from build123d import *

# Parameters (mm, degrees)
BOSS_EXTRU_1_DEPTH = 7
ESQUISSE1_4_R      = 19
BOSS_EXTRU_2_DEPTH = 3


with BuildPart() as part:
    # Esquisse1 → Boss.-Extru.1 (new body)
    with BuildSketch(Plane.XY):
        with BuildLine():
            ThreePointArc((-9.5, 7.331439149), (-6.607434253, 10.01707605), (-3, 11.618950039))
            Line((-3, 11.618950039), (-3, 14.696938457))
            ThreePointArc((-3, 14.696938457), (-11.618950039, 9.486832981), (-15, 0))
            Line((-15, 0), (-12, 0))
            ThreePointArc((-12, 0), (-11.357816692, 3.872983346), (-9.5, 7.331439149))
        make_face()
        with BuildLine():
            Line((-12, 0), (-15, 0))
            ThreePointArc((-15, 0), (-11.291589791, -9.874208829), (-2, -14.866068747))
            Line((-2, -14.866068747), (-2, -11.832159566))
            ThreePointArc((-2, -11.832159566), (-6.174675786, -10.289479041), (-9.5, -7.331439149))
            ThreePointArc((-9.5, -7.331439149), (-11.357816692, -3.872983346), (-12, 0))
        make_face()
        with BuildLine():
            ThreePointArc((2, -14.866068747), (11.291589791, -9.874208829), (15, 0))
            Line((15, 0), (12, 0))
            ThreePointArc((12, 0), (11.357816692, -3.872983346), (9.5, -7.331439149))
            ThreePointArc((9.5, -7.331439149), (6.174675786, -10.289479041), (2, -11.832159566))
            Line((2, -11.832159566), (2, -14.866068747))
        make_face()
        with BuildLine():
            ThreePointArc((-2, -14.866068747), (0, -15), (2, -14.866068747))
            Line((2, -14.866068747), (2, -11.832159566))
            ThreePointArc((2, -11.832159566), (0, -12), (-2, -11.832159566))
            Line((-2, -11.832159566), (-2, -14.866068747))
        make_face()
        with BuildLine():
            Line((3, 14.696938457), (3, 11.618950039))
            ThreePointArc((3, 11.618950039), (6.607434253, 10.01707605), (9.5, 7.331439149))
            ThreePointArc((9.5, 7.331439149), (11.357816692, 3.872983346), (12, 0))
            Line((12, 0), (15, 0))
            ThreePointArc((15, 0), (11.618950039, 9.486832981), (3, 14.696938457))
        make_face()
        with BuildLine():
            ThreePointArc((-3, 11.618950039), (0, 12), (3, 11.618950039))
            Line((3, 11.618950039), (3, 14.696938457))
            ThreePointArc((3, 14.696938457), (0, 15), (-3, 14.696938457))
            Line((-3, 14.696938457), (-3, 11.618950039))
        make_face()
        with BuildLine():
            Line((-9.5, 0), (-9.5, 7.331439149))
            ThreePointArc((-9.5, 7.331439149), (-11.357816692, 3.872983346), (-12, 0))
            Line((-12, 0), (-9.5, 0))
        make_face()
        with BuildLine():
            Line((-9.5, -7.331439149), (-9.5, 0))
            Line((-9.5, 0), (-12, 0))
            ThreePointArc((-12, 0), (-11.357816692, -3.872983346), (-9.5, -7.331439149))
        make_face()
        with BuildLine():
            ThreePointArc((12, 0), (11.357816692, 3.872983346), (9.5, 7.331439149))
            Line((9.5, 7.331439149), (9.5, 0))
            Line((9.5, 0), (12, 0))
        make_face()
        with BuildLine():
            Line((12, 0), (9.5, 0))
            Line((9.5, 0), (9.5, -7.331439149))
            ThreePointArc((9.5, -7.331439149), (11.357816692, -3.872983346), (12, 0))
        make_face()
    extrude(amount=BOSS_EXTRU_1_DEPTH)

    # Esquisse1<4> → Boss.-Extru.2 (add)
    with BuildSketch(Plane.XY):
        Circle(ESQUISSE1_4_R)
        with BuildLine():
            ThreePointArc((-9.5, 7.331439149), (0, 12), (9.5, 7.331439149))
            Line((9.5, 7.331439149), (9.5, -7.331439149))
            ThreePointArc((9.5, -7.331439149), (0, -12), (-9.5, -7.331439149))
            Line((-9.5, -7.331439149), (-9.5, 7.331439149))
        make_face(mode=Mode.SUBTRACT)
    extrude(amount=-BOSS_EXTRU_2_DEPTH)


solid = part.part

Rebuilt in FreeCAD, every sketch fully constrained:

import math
import FreeCAD as App
import Part
import Sketcher
Q = App.Units.Quantity

doc = App.newDocument("Part")
params = doc.addObject("Spreadsheet::Sheet", "Params")
for row, (alias, value) in enumerate([
    ("sketch1_radius", "15 mm"),
    ("sketch1_radius2", "12 mm"),
    ("pad1_length", "7 mm"),
    ("sketch2_diameter", "38 mm"),
    ("sketch2_radius", "12 mm"),
    ("pad2_length", "3 mm"),
], start=1):
    params.set(f"A{row}", alias)
    params.set(f"B{row}", "=" + value)
    params.setAlias(f"B{row}", alias)

body = doc.addObject("PartDesign::Body", "Body")

# Sketch on XY plane
sketch1 = body.newObject("Sketcher::SketchObject", "Sketch")
sketch1.AttachmentSupport = (doc.getObject("XY_Plane"), [""])
sketch1.MapMode = "FlatFace"
sketch1.addGeometry(Part.ArcOfCircle(Part.Circle(App.Vector(0, 0, 0), App.Vector(0, 0, 1), 15), math.radians(102), math.radians(180)), False)
sketch1.addGeometry(Part.ArcOfCircle(Part.Circle(App.Vector(0, 0, 0), App.Vector(0, 0, 1), 15), math.radians(180), math.radians(262)), False)
sketch1.addGeometry(Part.ArcOfCircle(Part.Circle(App.Vector(0, 0, 0), App.Vector(0, 0, 1), 15), math.radians(-97.66), math.radians(-82.34)), False)
sketch1.addGeometry(Part.ArcOfCircle(Part.Circle(App.Vector(0, 0, 0), App.Vector(0, 0, 1), 15), math.radians(-82), math.radians(0)), False)
sketch1.addGeometry(Part.ArcOfCircle(Part.Circle(App.Vector(0, 0, 0), App.Vector(0, 0, 1), 15), math.radians(0), math.radians(78)), False)
sketch1.addGeometry(Part.ArcOfCircle(Part.Circle(App.Vector(0, 0, 0), App.Vector(0, 0, 1), 15), math.radians(78), math.radians(102)), False)
sketch1.addGeometry(Part.ArcOfCircle(Part.Circle(App.Vector(0, 0, 0), App.Vector(0, 0, 1), 12), math.radians(-80), math.radians(-38)), False)
sketch1.addGeometry(Part.ArcOfCircle(Part.Circle(App.Vector(0, 0, 0), App.Vector(0, 0, 1), 12), math.radians(-99.59), math.radians(-80.41)), False)
sketch1.addGeometry(Part.ArcOfCircle(Part.Circle(App.Vector(0, 0, 0), App.Vector(0, 0, 1), 12), math.radians(-142), math.radians(-100)), False)
sketch1.addGeometry(Part.LineSegment(App.Vector(-9.5, -7.3, 0), App.Vector(-9.5, 7.3, 0)), False)
sketch1.addGeometry(Part.ArcOfCircle(Part.Circle(App.Vector(0, 0, 0), App.Vector(0, 0, 1), 12), math.radians(104), math.radians(142)), False)
sketch1.addGeometry(Part.ArcOfCircle(Part.Circle(App.Vector(0, 0, 0), App.Vector(0, 0, 1), 12), math.radians(76), math.radians(104)), False)
sketch1.addGeometry(Part.ArcOfCircle(Part.Circle(App.Vector(0, 0, 0), App.Vector(0, 0, 1), 12), math.radians(38), math.radians(76)), False)
sketch1.addGeometry(Part.LineSegment(App.Vector(9.5, 7.3, 0), App.Vector(9.5, -7.3, 0)), False)
sketch1.addConstraint(Sketcher.Constraint("Tangent", 0, 2, 1, 1))
sketch1.addConstraint(Sketcher.Constraint("Tangent", 1, 2, 2, 1))
sketch1.addConstraint(Sketcher.Constraint("Tangent", 2, 2, 3, 1))
sketch1.addConstraint(Sketcher.Constraint("Tangent", 3, 2, 4, 1))
sketch1.addConstraint(Sketcher.Constraint("Tangent", 4, 2, 5, 1))
sketch1.addConstraint(Sketcher.Constraint("Tangent", 5, 2, 0, 1))
sketch1.addConstraint(Sketcher.Constraint("Tangent", 6, 1, 7, 2))
sketch1.addConstraint(Sketcher.Constraint("Tangent", 7, 1, 8, 2))
sketch1.addConstraint(Sketcher.Constraint("Coincident", 8, 1, 9, 1))
sketch1.addConstraint(Sketcher.Constraint("Coincident", 9, 2, 10, 2))
sketch1.addConstraint(Sketcher.Constraint("Tangent", 10, 1, 11, 2))
sketch1.addConstraint(Sketcher.Constraint("Tangent", 11, 1, 12, 2))
sketch1.addConstraint(Sketcher.Constraint("Coincident", 12, 1, 13, 1))
sketch1.addConstraint(Sketcher.Constraint("Coincident", 13, 2, 6, 2))
sketch1.addConstraint(Sketcher.Constraint("Vertical", 9))
sketch1.addConstraint(Sketcher.Constraint("Vertical", 13))
sketch1.addConstraint(Sketcher.Constraint("Coincident", 0, 3, -1, 1))
sketch1.addConstraint(Sketcher.Constraint("Coincident", 2, 3, -1, 1))
sketch1.addConstraint(Sketcher.Constraint("Coincident", 6, 3, -1, 1))
sketch1.addConstraint(Sketcher.Constraint("Coincident", 8, 3, -1, 1))
sketch1.addConstraint(Sketcher.Constraint("Coincident", 10, 3, -1, 1))
sketch1.addConstraint(Sketcher.Constraint("Coincident", 12, 3, -1, 1))
sketch1.addConstraint(Sketcher.Constraint("Equal", 2, 3))
sketch1.addConstraint(Sketcher.Constraint("Equal", 8, 10))
sketch1.addConstraint(Sketcher.Constraint("PointOnObject", 0, 2, -1))
sketch1.addConstraint(Sketcher.Constraint("PointOnObject", 3, 2, -1))
sketch1.addConstraint(Sketcher.Constraint("Horizontal", 1, 2, 2, 2))
sketch1.addConstraint(Sketcher.Constraint("Horizontal", 4, 2, 5, 2))
sketch1.addConstraint(Sketcher.Constraint("Horizontal", 6, 1, 7, 1))
sketch1.addConstraint(Sketcher.Constraint("Horizontal", 10, 1, 11, 1))
sketch1.addConstraint(Sketcher.Constraint("Horizontal", 9, 2, 12, 1))
sketch1.addConstraint(Sketcher.Constraint("Vertical", 2, 2, 6, 1))
sketch1.addConstraint(Sketcher.Constraint("Vertical", 5, 2, 10, 1))
sketch1.addConstraint(Sketcher.Constraint("Radius", 0, Q("15 mm")))
sketch1.addConstraint(Sketcher.Constraint("Radius", 6, Q("12 mm")))
sketch1.addConstraint(Sketcher.Constraint("DistanceX", 1, 2, -1, 1, Q("2 mm")))
sketch1.addConstraint(Sketcher.Constraint("DistanceX", -1, 1, 4, 2, Q("3 mm")))
sketch1.addConstraint(Sketcher.Constraint("DistanceX", 8, 1, -1, 1, Q("9.5 mm")))
sketch1.setExpression("Constraints[33]", "Params.sketch1_radius")
sketch1.setExpression("Constraints[34]", "Params.sketch1_radius2")
pad1 = body.newObject("PartDesign::Pad", "Pad")
pad1.Profile = sketch1
pad1.setExpression("Length", "Params.pad1_length")

# Sketch on XY plane
sketch2 = body.newObject("Sketcher::SketchObject", "Sketch001")
sketch2.AttachmentSupport = (doc.getObject("XY_Plane"), [""])
sketch2.MapMode = "FlatFace"
sketch2.addGeometry(Part.Circle(App.Vector(0, 0, 0), App.Vector(0, 0, 1), 19), False)
sketch2.addGeometry(Part.LineSegment(App.Vector(-10, -7, 0), App.Vector(-10, 7, 0)), False)
sketch2.addGeometry(Part.ArcOfCircle(Part.Circle(App.Vector(0, 0, 0), App.Vector(0, 0, 1), 12), math.radians(38), math.radians(142)), False)
sketch2.addGeometry(Part.LineSegment(App.Vector(10, 7, 0), App.Vector(10, -7, 0)), False)
sketch2.addGeometry(Part.ArcOfCircle(Part.Circle(App.Vector(0, 0, 0), App.Vector(0, 0, 1), 12), math.radians(-142), math.radians(-38)), False)
sketch2.addConstraint(Sketcher.Constraint("Coincident", 1, 2, 2, 2))
sketch2.addConstraint(Sketcher.Constraint("Coincident", 2, 1, 3, 1))
sketch2.addConstraint(Sketcher.Constraint("Coincident", 3, 2, 4, 2))
sketch2.addConstraint(Sketcher.Constraint("Coincident", 4, 1, 1, 1))
sketch2.addConstraint(Sketcher.Constraint("Vertical", 1))
sketch2.addConstraint(Sketcher.Constraint("Vertical", 3))
sketch2.addConstraint(Sketcher.Constraint("Coincident", 0, 3, -1, 1))
sketch2.addConstraint(Sketcher.Constraint("Coincident", 2, 3, -1, 1))
sketch2.addConstraint(Sketcher.Constraint("Coincident", 4, 3, -1, 1))
sketch2.addConstraint(Sketcher.Constraint("Equal", 2, 4))
sketch2.addConstraint(Sketcher.Constraint("Horizontal", 1, 2, 2, 1))
sketch2.addConstraint(Sketcher.Constraint("Diameter", 0, Q("38 mm")))
sketch2.addConstraint(Sketcher.Constraint("Radius", 2, Q("12 mm")))
sketch2.addConstraint(Sketcher.Constraint("DistanceX", 1, 2, 2, 1, Q("19 mm")))
sketch2.setExpression("Constraints[11]", "Params.sketch2_diameter")
sketch2.setExpression("Constraints[12]", "Params.sketch2_radius")
pad2 = body.newObject("PartDesign::Pad", "Pad001")
pad2.Profile = sketch2
pad2.setExpression("Length", "Params.pad2_length")
pad2.Reversed = True

doc.recompute()
